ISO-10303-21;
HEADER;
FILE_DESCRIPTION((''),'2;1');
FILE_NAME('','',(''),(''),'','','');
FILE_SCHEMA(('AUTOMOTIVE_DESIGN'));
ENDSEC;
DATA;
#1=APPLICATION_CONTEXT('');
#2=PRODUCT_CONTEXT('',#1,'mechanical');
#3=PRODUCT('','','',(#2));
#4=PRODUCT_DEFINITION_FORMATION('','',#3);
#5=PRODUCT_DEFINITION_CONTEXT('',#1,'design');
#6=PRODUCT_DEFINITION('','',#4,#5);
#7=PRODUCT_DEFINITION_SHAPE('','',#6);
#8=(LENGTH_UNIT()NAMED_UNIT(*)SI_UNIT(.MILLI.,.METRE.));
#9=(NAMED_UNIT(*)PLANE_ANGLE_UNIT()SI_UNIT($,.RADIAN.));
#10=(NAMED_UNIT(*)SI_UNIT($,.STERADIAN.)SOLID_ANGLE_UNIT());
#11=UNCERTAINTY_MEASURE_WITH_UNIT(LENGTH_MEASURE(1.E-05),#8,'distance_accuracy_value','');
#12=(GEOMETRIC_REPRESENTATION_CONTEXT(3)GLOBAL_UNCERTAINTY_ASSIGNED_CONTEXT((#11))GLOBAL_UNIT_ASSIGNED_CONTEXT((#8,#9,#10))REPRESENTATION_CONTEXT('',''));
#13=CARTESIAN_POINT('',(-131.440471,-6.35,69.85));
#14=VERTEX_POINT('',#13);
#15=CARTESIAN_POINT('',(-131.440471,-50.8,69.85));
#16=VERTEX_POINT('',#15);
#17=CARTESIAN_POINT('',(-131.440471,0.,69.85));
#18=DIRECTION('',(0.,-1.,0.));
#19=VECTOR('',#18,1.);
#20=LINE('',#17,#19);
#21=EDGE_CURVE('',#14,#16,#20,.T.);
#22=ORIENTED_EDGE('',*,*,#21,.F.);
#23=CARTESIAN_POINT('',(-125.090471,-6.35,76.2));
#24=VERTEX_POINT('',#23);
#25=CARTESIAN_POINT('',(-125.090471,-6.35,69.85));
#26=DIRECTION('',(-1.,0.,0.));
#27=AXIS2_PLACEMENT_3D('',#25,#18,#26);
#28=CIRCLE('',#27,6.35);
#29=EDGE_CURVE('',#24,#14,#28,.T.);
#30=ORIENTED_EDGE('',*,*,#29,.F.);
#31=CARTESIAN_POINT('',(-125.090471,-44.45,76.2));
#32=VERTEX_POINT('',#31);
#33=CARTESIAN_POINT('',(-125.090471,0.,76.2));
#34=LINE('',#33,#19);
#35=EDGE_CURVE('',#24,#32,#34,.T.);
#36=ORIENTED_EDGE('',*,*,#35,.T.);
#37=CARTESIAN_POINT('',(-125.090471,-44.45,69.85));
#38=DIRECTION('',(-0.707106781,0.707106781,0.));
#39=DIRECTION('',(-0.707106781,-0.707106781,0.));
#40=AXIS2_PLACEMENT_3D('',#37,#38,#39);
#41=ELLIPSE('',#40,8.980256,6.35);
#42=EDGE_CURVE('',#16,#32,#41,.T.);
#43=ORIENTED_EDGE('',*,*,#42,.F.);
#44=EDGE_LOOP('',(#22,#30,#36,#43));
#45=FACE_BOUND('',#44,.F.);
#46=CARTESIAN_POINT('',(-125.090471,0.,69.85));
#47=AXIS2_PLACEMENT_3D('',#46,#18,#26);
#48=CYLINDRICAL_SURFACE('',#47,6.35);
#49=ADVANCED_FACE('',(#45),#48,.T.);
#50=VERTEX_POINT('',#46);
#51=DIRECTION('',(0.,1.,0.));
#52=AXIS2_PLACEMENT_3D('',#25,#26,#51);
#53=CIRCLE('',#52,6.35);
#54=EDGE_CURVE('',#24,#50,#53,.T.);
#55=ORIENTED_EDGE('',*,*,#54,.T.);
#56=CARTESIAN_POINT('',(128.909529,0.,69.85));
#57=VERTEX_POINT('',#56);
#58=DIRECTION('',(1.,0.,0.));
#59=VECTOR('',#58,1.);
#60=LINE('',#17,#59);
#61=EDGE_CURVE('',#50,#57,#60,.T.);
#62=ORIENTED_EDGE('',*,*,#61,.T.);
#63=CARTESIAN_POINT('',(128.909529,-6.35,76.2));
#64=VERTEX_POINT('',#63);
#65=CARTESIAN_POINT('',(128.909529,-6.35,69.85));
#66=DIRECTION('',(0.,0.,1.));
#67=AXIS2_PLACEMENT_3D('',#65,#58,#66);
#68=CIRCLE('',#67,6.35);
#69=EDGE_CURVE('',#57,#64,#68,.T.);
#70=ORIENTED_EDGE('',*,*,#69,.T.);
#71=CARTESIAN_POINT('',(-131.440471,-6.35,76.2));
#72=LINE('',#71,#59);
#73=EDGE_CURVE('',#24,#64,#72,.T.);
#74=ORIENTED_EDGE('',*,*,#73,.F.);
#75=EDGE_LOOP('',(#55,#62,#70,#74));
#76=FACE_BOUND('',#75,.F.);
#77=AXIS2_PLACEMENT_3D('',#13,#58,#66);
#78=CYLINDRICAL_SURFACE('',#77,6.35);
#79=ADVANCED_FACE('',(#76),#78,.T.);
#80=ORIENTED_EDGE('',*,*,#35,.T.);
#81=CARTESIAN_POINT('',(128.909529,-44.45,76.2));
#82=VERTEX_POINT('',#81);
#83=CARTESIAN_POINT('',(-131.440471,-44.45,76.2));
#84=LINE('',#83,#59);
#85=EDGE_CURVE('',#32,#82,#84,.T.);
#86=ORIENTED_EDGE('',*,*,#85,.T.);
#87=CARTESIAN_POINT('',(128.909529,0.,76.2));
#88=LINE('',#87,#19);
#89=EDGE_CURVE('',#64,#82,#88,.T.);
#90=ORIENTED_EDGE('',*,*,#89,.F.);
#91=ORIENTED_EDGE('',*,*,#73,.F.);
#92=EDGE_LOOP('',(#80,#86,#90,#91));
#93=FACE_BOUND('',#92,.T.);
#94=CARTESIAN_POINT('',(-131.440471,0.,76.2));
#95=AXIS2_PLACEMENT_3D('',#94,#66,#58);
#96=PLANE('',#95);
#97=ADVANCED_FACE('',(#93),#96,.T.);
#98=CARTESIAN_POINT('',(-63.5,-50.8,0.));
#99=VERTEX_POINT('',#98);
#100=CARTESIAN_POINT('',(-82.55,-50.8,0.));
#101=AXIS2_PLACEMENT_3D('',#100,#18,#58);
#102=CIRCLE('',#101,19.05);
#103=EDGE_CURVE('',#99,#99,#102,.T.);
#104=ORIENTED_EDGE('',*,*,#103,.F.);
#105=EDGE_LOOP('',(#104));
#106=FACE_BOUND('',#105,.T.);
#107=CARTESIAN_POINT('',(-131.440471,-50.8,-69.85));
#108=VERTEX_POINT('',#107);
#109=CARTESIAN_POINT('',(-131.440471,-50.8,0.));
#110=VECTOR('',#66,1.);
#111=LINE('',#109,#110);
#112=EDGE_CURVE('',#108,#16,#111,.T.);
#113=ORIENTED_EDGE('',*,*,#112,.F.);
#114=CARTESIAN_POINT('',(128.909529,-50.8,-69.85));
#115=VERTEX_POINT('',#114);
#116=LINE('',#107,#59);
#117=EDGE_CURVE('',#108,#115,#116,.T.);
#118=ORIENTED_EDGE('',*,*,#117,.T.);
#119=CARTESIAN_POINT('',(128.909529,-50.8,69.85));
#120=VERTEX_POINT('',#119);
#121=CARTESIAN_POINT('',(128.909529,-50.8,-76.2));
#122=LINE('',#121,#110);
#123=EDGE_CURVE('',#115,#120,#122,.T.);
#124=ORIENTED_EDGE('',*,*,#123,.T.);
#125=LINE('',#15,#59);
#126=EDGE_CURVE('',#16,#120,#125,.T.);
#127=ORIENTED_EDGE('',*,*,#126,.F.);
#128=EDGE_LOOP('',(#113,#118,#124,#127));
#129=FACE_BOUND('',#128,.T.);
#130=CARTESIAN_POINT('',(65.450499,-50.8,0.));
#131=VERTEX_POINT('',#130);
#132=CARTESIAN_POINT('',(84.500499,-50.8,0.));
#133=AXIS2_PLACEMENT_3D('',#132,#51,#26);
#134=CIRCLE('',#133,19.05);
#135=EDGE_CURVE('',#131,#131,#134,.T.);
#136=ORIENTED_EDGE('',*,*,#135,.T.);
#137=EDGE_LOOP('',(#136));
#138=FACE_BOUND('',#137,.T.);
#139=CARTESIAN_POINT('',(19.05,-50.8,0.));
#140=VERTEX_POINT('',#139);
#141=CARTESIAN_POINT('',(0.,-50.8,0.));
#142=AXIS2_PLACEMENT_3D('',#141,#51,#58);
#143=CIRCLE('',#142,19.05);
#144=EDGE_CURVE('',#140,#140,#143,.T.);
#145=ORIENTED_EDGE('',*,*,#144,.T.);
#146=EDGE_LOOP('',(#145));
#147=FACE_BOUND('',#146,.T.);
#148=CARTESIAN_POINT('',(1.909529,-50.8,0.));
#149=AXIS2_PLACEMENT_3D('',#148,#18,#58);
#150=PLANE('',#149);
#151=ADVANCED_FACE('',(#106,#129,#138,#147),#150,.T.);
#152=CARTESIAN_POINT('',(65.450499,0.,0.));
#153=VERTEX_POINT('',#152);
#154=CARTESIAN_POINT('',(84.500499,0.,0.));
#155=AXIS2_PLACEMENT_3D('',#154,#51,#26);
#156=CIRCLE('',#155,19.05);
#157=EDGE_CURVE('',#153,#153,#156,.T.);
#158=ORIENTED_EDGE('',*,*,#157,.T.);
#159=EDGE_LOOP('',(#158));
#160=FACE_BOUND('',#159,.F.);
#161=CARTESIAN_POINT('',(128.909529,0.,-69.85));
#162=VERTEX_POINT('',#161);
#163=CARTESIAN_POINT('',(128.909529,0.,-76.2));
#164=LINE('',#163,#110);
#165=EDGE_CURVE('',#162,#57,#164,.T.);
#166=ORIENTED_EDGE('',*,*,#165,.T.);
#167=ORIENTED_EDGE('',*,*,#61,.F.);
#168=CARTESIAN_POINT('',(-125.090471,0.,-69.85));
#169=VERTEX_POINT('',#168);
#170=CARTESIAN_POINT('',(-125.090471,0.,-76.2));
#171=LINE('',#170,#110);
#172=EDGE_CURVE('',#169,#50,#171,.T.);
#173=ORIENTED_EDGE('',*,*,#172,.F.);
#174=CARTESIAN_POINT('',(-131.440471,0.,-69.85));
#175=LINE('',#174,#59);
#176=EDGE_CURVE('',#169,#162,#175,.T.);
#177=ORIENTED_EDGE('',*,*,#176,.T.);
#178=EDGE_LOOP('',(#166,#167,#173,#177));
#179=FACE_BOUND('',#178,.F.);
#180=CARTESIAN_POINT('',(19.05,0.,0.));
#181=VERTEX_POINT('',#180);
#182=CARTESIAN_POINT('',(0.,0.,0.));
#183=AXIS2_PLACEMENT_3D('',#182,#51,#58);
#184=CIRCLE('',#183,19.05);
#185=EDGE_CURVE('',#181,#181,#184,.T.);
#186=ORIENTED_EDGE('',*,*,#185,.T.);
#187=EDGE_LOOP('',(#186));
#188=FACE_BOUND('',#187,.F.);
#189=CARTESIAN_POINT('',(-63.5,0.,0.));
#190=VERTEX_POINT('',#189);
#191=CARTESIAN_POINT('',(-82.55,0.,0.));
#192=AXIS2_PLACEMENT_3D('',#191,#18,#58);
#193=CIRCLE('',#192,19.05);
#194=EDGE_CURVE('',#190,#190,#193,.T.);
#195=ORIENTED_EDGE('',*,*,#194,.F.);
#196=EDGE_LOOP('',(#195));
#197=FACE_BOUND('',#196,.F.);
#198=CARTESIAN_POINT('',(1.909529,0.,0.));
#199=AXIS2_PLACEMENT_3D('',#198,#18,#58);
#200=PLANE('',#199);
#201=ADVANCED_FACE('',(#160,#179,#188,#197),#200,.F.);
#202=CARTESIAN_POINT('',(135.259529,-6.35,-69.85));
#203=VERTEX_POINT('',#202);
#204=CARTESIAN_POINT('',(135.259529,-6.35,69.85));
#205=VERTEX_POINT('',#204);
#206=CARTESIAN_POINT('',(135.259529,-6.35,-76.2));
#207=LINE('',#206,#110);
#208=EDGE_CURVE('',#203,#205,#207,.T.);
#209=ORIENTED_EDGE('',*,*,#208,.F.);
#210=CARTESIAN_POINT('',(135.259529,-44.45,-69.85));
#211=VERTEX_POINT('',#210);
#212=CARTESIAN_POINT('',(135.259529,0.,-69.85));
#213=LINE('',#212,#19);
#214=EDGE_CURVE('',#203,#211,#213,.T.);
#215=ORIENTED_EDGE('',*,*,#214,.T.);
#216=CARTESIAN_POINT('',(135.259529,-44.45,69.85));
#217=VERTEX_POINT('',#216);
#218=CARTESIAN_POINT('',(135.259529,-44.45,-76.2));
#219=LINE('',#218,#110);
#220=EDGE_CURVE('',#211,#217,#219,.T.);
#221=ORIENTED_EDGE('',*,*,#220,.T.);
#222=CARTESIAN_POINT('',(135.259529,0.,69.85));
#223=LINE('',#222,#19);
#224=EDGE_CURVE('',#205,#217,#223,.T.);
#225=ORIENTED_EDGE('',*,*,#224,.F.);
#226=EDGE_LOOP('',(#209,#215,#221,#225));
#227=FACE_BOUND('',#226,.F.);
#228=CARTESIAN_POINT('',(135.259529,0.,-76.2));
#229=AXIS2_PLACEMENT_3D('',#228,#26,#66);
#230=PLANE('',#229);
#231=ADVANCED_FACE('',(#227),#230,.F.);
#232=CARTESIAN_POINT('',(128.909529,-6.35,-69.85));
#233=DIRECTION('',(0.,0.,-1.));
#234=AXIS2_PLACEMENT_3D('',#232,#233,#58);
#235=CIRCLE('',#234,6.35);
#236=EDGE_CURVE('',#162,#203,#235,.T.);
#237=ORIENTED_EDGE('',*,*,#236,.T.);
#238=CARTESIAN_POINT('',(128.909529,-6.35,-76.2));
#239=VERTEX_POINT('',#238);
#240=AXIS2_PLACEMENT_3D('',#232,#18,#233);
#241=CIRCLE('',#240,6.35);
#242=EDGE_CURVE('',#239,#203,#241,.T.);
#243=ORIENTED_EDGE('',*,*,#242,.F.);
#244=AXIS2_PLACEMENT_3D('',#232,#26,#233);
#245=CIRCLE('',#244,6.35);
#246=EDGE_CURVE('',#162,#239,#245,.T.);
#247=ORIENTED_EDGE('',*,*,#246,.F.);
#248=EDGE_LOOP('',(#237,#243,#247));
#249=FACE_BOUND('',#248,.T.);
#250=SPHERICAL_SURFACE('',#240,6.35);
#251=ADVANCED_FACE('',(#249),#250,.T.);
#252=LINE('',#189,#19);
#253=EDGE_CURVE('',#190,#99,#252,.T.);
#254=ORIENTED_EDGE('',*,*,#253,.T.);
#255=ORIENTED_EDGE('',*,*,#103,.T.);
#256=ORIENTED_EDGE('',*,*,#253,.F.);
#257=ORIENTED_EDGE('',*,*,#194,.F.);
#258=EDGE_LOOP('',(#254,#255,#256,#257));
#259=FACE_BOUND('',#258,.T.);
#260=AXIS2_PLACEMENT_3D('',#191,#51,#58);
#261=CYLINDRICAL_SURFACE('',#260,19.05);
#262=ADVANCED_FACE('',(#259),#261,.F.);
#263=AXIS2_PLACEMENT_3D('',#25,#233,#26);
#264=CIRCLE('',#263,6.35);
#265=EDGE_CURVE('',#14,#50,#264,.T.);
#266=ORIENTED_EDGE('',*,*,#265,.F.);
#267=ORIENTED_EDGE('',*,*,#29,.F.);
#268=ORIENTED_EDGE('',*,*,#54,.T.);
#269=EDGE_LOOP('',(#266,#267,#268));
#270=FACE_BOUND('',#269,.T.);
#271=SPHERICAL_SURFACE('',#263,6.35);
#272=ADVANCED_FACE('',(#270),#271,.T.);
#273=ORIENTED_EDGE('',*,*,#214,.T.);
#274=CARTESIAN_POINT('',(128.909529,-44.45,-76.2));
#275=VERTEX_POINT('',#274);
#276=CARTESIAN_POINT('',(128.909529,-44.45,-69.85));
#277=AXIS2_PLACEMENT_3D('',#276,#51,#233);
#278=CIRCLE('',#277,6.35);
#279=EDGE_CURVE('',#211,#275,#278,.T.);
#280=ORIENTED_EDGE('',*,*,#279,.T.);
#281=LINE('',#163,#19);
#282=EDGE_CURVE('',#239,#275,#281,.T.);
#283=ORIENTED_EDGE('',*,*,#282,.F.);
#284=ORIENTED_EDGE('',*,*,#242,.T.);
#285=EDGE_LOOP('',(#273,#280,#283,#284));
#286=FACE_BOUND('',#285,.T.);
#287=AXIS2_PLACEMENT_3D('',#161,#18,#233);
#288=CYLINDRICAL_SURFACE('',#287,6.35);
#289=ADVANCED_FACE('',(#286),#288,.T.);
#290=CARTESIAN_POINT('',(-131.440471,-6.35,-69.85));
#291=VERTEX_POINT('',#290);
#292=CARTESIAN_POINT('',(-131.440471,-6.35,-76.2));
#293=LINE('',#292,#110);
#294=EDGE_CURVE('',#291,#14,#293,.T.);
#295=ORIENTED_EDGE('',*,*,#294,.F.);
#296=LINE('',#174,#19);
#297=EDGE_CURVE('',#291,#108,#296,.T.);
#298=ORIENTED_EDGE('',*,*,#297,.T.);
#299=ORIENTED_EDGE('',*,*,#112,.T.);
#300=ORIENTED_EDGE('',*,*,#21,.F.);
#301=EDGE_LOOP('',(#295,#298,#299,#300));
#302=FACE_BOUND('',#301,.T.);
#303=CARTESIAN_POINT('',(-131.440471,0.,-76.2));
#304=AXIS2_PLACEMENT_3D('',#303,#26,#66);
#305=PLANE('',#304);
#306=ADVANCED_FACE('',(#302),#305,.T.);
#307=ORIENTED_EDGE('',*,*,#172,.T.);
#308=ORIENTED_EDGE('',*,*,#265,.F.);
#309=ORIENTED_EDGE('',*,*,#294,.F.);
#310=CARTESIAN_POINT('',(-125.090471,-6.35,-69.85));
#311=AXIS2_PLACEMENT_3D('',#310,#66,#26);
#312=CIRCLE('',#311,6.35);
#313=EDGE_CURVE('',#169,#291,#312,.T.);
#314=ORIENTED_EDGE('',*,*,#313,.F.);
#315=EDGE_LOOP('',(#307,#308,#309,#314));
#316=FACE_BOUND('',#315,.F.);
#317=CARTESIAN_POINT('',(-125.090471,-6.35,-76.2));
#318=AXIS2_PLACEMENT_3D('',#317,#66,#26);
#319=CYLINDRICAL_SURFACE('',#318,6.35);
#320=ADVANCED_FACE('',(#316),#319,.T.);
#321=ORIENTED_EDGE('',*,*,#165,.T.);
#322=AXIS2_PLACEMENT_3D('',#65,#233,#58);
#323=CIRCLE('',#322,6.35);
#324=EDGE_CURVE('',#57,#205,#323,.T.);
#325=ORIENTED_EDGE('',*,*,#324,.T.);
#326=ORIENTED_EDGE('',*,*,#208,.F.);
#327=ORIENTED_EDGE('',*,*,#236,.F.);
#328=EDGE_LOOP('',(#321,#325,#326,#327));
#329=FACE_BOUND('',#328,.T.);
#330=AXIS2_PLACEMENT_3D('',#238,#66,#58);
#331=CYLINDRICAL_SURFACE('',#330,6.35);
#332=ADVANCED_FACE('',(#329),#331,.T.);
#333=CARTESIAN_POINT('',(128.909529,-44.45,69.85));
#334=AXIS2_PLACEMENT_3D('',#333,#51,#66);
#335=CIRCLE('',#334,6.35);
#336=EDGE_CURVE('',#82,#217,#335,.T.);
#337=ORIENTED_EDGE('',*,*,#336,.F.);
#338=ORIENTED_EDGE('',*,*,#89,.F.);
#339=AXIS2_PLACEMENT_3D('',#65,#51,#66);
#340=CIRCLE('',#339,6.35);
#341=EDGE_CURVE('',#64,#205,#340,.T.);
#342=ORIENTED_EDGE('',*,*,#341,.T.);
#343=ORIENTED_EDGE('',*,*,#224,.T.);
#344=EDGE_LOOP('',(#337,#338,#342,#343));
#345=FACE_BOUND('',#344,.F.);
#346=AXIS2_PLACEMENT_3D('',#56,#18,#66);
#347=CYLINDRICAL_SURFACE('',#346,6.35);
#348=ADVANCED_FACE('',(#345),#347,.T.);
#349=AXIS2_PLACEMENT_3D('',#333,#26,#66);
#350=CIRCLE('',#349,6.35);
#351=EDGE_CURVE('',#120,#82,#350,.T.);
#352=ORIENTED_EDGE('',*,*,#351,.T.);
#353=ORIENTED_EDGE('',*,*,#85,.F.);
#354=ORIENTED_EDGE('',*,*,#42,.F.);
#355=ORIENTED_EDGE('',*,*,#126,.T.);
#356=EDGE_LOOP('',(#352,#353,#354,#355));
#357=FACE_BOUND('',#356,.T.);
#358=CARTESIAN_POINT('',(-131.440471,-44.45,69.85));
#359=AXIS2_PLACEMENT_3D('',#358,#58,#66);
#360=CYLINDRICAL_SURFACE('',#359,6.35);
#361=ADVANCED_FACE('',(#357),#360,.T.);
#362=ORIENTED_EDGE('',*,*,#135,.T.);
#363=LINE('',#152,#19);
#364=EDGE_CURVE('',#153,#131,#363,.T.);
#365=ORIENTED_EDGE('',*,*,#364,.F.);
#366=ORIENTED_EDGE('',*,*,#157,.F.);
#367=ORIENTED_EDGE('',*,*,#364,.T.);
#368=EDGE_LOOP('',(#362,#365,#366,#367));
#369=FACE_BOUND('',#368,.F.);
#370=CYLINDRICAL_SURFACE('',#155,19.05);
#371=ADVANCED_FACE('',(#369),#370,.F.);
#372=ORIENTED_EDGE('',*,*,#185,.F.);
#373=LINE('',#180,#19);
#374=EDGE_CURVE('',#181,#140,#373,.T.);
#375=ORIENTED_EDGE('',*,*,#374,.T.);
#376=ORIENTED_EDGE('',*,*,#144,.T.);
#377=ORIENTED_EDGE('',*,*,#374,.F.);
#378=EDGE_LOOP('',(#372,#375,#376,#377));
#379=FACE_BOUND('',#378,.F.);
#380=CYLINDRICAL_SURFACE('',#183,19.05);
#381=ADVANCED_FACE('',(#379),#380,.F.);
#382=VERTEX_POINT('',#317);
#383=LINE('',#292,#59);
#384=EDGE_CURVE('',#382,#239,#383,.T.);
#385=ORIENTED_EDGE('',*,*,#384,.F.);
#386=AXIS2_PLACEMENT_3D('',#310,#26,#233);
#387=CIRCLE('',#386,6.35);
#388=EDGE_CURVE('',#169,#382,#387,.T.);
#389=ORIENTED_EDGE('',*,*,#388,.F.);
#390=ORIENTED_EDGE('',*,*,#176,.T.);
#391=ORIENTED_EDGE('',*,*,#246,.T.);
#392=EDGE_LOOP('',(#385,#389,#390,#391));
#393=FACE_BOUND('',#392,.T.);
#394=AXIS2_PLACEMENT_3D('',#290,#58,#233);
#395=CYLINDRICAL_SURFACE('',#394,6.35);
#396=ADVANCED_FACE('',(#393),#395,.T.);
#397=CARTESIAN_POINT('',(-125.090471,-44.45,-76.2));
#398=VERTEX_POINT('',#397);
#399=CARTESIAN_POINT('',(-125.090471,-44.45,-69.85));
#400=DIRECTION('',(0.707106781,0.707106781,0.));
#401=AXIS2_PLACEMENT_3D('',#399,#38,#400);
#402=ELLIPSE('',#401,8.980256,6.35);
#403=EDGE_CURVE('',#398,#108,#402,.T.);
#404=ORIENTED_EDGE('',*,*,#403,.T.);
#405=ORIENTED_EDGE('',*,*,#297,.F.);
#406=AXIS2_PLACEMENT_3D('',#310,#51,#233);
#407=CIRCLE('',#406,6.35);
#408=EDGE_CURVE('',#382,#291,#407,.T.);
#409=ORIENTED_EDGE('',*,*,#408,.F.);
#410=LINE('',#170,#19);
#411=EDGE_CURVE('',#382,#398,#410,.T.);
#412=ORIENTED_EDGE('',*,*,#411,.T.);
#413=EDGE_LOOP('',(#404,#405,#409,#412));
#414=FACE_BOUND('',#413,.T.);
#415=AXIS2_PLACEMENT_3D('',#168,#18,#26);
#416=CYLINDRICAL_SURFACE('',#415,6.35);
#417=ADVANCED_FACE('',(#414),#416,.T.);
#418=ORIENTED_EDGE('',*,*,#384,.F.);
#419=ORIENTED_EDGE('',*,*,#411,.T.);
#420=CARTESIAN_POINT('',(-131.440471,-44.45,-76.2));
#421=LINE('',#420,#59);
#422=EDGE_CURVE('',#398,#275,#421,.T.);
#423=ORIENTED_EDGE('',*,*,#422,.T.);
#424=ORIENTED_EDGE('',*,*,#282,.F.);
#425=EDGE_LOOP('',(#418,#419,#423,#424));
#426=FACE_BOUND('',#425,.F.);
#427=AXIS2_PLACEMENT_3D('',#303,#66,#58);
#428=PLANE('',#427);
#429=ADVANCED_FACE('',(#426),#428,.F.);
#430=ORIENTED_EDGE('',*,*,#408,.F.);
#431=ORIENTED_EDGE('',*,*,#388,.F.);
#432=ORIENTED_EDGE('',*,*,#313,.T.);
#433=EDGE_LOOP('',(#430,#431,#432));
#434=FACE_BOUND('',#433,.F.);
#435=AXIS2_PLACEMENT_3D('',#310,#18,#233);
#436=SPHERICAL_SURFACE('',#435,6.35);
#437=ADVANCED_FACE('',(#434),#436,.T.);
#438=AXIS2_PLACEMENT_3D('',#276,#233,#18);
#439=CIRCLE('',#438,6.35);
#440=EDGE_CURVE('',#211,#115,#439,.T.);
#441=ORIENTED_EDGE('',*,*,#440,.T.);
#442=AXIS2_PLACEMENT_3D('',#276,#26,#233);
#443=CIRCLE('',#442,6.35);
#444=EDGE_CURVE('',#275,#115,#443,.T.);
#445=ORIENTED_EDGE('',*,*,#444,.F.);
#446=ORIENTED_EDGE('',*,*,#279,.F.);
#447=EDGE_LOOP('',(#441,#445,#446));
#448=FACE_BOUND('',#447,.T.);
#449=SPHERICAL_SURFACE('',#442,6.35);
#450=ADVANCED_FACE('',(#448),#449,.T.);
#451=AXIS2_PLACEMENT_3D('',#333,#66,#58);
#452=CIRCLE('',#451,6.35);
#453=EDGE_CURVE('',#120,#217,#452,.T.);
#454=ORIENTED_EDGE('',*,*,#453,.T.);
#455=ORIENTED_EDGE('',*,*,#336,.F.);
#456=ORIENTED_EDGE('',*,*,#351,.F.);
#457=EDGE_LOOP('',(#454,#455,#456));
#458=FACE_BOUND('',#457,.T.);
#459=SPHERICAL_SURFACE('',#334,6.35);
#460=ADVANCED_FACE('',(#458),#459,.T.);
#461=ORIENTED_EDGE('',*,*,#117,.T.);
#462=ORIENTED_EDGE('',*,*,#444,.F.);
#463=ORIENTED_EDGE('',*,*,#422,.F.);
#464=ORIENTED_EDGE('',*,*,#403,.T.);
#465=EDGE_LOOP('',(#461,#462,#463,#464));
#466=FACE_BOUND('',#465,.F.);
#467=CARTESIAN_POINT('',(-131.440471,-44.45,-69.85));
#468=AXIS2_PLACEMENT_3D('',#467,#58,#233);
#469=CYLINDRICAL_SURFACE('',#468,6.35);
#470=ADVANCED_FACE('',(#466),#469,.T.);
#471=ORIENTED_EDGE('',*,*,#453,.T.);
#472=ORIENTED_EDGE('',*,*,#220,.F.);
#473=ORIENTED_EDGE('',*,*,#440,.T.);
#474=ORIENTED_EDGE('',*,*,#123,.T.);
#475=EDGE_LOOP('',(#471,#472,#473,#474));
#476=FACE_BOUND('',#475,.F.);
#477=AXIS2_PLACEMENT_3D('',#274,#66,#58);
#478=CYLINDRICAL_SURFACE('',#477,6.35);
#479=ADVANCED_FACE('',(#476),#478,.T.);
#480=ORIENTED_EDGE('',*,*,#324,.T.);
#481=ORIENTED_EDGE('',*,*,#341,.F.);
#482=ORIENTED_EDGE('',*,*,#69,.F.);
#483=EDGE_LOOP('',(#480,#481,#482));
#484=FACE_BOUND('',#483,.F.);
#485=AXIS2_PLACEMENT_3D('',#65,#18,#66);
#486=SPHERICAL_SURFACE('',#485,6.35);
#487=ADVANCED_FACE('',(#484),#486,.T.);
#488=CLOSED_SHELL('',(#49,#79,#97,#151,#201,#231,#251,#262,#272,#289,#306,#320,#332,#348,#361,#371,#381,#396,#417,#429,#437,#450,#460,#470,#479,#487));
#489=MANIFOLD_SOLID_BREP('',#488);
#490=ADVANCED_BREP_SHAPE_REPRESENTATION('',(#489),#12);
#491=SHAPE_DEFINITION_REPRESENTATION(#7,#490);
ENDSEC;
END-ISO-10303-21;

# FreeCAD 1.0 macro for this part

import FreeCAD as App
import Part
import Sketcher
from FreeCAD import Vector
Q = App.Units.Quantity


def edges_at(feature, points):
    """Names of the edges that pass closest to the given points."""
    edges = feature.Shape.Edges
    near = lambda p: min(range(len(edges)), key=lambda i: edges[i].distToShape(Part.Vertex(*p))[0])
    return sorted({f"Edge{near(p) + 1}" for p in points})


def add_polygon(sketch, points):
    """Adds a closed chain of lines whose ends are joined by coincident constraints."""
    first, n = sketch.GeometryCount, len(points)
    for a, b in zip(points, points[1:] + points[:1]):
        sketch.addGeometry(Part.LineSegment(App.Vector(*a, 0), App.Vector(*b, 0)), False)
    for i in range(n):
        sketch.addConstraint(Sketcher.Constraint("Coincident", first + i, 2, first + (i + 1) % n, 1))

doc = App.newDocument("Part")
body = doc.addObject("PartDesign::Body", "Body")

sketch1 = body.newObject("Sketcher::SketchObject", "Sketch")
sketch1.AttachmentSupport = (doc.getObject("XZ_Plane"), [""])
sketch1.MapMode = "FlatFace"
add_polygon(sketch1, [(-131.440471, 76.2), (-131.440471, -76.2), (135.259529, -76.2), (135.259529, 76.2)])
sketch1.addGeometry(Part.Circle(Vector(-82.55, 0, 0), Vector(0, 0, 1), 19.05), False)
sketch1.addGeometry(Part.Circle(Vector(84.500499, 0, 0), Vector(0, 0, 1), 19.05), False)
sketch1.addGeometry(Part.Circle(Vector(0, 0, 0), Vector(0, 0, 1), 19.05), False)
sketch1.addConstraint([
    Sketcher.Constraint("Vertical", 0),
    Sketcher.Constraint("Horizontal", 1),
    Sketcher.Constraint("Vertical", 2),
    Sketcher.Constraint("Horizontal", 3),
    Sketcher.Constraint("Coincident", 6, 3, -1, 1),
    Sketcher.Constraint("Equal", 4, 5),
    Sketcher.Constraint("Equal", 5, 6),
    Sketcher.Constraint("PointOnObject", 4, 3, -1),
    Sketcher.Constraint("PointOnObject", 5, 3, -1),
    Sketcher.Constraint("Diameter", 4, Q("1.5 in")),
    Sketcher.Constraint("DistanceY", 0, 2, 0, 1, Q("6 in")),
    Sketcher.Constraint("DistanceX", 1, 1, 1, 2, Q("10.5 in")),
    Sketcher.Constraint("DistanceY", 0, 2, -1, 1, Q("3 in")),
    Sketcher.Constraint("DistanceX", 4, 3, -1, 1, Q("3.25 in")),
    Sketcher.Constraint("DistanceX", -1, 1, 5, 3, Q("84.500499 mm")),
    Sketcher.Constraint("DistanceX", 0, 2, -1, 1, Q("131.440471 mm")),
])
pad1 = body.newObject("PartDesign::Pad", "Pad")
pad1.Profile = sketch1
pad1.Length = Q("2 in")
doc.recompute()

fillet = body.newObject("PartDesign::Fillet", "Fillet")
fillet.Base = (pad1, edges_at(pad1, [
    (1.91, -50.8, -76.2),
    (-131.44, -25.4, -76.2),
    (135.26, -25.4, -76.2),
    (1.91, 0, -76.2),
    (-131.44, 0, 0),
    (135.26, -25.4, 76.2),
    (-131.44, -25.4, 76.2),
    (1.91, 0, 76.2),
    (1.91, -50.8, 76.2),
    (135.26, 0, 0),
    (135.26, -50.8, 0),
]))
fillet.Radius = Q("0.25 in")

doc.recompute()
